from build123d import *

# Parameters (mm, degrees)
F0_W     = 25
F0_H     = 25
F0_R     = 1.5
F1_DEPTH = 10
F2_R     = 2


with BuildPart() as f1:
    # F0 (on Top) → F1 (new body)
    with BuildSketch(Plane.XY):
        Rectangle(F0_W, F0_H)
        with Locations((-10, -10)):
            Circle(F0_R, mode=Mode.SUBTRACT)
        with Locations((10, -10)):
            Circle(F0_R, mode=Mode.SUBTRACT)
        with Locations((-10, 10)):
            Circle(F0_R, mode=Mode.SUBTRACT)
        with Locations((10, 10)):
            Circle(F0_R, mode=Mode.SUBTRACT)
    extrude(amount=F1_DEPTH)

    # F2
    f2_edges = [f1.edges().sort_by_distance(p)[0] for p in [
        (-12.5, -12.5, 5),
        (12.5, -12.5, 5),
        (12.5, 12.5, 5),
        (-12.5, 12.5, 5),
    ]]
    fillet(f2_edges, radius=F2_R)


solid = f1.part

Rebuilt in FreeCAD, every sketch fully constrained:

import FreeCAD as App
import Part
import Sketcher

V = App.Vector


def edges_at(feature, points):
    """Names of the edges that pass closest to the given points."""
    edges = feature.Shape.Edges
    near = lambda p: min(range(len(edges)), key=lambda i: edges[i].distToShape(Part.Vertex(*p))[0])
    return sorted({f"Edge{near(p) + 1}" for p in points})

doc = App.newDocument("Part")
params = doc.addObject("Spreadsheet::Sheet", "Params")
for row, (alias, value) in enumerate([
    ("sketch1_diameter", "3 mm"),
    ("sketch1_width", "25 mm"),
    ("pad1_length", "10 mm"),
    ("fillet_radius", "2 mm"),
], start=1):
    params.set(f"A{row}", alias)
    params.set(f"B{row}", "=" + value)
    params.setAlias(f"B{row}", alias)

body = doc.addObject("PartDesign::Body", "Body")

sketch1 = body.newObject("Sketcher::SketchObject", "Sketch")
sketch1.AttachmentSupport = (doc.getObject("XY_Plane"), [""])
sketch1.MapMode = "FlatFace"
sketch1.addGeometry([
    Part.LineSegment(V(-12.5, 12.5, 0), V(-12.5, -12.5, 0)),
    Part.LineSegment(V(-12.5, -12.5, 0), V(12.5, -12.5, 0)),
    Part.LineSegment(V(12.5, -12.5, 0), V(12.5, 12.5, 0)),
    Part.LineSegment(V(12.5, 12.5, 0), V(-12.5, 12.5, 0)),
    Part.Circle(V(-10, -10, 0), V(0, 0, 1), 1.5),
    Part.Circle(V(10, -10, 0), V(0, 0, 1), 1.5),
    Part.Circle(V(-10, 10, 0), V(0, 0, 1), 1.5),
    Part.Circle(V(10, 10, 0), V(0, 0, 1), 1.5),
], False)
sketch1.addConstraint([
    Sketcher.Constraint("Coincident", 0, 2, 1, 1),
    Sketcher.Constraint("Coincident", 1, 2, 2, 1),
    Sketcher.Constraint("Coincident", 2, 2, 3, 1),
    Sketcher.Constraint("Coincident", 3, 2, 0, 1),
    Sketcher.Constraint("Vertical", 0),
    Sketcher.Constraint("Horizontal", 1),
    Sketcher.Constraint("Vertical", 2),
    Sketcher.Constraint("Horizontal", 3),
    Sketcher.Constraint("Equal", 4, 5),
    Sketcher.Constraint("Equal", 5, 6),
    Sketcher.Constraint("Equal", 6, 7),
    Sketcher.Constraint("Symmetric", 5, 3, 6, 3, -1, 1),
    Sketcher.Constraint("Symmetric", 4, 3, 7, 3, -1, 1),
    Sketcher.Constraint("Symmetric", 0, 2, 2, 2, -1, 1),
    Sketcher.Constraint("Symmetric", 4, 3, 5, 3, -2),
    Sketcher.Constraint("Equal", 3, 0),
    Sketcher.Constraint("Diameter", 4, 3.0),
    Sketcher.Constraint("DistanceX", 1, 1, 1, 2, 25.0),
    Sketcher.Constraint("DistanceX", 4, 3, -1, 1, 10.0),
    Sketcher.Constraint("DistanceY", 4, 3, -1, 1, 10.0),
])
sketch1.setExpression("Constraints[16]", "Params.sketch1_diameter")
sketch1.setExpression("Constraints[17]", "Params.sketch1_width")
pad1 = body.newObject("PartDesign::Pad", "Pad")
pad1.Profile = sketch1
pad1.setExpression("Length", "Params.pad1_length")
doc.recompute()

fillet = body.newObject("PartDesign::Fillet", "Fillet")
fillet.Base = (pad1, edges_at(pad1, [
    (-12.5, -12.5, 5),
    (12.5, -12.5, 5),
    (12.5, 12.5, 5),
    (-12.5, 12.5, 5),
]))
fillet.setExpression("Radius", "Params.fillet_radius")

doc.recompute()
